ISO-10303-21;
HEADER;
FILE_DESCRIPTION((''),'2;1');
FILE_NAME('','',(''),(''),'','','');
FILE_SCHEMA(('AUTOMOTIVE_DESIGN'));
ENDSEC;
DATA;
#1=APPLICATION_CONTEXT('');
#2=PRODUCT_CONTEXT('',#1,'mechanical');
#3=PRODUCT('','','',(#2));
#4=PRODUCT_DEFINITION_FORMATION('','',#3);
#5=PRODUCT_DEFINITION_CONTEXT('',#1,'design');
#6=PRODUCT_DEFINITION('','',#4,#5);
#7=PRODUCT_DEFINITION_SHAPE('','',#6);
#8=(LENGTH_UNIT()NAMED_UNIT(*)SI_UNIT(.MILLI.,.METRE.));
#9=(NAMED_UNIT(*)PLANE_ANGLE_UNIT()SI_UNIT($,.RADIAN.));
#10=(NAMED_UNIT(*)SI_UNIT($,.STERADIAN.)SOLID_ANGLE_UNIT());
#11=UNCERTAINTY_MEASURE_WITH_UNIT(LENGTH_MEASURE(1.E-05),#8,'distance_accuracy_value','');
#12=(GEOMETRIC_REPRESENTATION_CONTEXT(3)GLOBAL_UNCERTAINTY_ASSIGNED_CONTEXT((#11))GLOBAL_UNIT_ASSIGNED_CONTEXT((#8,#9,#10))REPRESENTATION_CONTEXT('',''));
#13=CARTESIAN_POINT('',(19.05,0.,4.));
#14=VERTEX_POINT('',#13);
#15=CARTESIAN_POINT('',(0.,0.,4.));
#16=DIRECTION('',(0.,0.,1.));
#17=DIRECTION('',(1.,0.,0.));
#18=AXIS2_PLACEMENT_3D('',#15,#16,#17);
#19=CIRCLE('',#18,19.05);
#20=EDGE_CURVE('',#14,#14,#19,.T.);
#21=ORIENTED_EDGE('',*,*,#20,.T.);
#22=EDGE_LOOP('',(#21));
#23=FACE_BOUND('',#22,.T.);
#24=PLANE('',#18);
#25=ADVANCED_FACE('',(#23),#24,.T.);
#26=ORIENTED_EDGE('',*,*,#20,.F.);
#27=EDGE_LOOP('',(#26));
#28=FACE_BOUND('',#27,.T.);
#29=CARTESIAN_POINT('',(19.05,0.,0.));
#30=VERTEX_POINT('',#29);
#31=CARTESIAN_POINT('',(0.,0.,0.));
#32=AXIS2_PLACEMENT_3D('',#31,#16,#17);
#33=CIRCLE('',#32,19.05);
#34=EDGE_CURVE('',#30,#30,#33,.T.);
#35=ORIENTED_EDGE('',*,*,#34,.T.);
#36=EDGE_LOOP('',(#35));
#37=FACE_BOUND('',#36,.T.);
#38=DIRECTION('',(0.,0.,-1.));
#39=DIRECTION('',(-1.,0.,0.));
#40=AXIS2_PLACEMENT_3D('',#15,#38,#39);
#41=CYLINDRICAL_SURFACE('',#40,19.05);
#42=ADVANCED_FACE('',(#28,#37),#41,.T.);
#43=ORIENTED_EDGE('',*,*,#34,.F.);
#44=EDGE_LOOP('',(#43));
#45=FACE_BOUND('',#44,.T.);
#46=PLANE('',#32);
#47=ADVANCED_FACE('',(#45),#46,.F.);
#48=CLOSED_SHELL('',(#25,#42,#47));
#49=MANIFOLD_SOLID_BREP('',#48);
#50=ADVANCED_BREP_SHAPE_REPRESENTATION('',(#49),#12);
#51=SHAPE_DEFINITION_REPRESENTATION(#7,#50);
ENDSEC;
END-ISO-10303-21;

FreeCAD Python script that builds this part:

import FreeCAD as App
import Part
import Sketcher

V = App.Vector
Q = App.Units.Quantity

doc = App.newDocument("Part")
body = doc.addObject("PartDesign::Body", "Body")

sketch1 = body.newObject("Sketcher::SketchObject", "Sketch")
sketch1.AttachmentSupport = (doc.getObject("XY_Plane"), [""])
sketch1.MapMode = "FlatFace"
sketch1.addGeometry(Part.Circle(V(0, 0, 0), V(0, 0, 1), 19), False)
sketch1.addConstraint(Sketcher.Constraint("Coincident", 0, 3, -1, 1))
sketch1.addConstraint(Sketcher.Constraint("Diameter", 0, Q("38.1 mm")))
pad1 = body.newObject("PartDesign::Pad", "Pad")
pad1.Profile = sketch1
pad1.Length = 4

doc.recompute()
